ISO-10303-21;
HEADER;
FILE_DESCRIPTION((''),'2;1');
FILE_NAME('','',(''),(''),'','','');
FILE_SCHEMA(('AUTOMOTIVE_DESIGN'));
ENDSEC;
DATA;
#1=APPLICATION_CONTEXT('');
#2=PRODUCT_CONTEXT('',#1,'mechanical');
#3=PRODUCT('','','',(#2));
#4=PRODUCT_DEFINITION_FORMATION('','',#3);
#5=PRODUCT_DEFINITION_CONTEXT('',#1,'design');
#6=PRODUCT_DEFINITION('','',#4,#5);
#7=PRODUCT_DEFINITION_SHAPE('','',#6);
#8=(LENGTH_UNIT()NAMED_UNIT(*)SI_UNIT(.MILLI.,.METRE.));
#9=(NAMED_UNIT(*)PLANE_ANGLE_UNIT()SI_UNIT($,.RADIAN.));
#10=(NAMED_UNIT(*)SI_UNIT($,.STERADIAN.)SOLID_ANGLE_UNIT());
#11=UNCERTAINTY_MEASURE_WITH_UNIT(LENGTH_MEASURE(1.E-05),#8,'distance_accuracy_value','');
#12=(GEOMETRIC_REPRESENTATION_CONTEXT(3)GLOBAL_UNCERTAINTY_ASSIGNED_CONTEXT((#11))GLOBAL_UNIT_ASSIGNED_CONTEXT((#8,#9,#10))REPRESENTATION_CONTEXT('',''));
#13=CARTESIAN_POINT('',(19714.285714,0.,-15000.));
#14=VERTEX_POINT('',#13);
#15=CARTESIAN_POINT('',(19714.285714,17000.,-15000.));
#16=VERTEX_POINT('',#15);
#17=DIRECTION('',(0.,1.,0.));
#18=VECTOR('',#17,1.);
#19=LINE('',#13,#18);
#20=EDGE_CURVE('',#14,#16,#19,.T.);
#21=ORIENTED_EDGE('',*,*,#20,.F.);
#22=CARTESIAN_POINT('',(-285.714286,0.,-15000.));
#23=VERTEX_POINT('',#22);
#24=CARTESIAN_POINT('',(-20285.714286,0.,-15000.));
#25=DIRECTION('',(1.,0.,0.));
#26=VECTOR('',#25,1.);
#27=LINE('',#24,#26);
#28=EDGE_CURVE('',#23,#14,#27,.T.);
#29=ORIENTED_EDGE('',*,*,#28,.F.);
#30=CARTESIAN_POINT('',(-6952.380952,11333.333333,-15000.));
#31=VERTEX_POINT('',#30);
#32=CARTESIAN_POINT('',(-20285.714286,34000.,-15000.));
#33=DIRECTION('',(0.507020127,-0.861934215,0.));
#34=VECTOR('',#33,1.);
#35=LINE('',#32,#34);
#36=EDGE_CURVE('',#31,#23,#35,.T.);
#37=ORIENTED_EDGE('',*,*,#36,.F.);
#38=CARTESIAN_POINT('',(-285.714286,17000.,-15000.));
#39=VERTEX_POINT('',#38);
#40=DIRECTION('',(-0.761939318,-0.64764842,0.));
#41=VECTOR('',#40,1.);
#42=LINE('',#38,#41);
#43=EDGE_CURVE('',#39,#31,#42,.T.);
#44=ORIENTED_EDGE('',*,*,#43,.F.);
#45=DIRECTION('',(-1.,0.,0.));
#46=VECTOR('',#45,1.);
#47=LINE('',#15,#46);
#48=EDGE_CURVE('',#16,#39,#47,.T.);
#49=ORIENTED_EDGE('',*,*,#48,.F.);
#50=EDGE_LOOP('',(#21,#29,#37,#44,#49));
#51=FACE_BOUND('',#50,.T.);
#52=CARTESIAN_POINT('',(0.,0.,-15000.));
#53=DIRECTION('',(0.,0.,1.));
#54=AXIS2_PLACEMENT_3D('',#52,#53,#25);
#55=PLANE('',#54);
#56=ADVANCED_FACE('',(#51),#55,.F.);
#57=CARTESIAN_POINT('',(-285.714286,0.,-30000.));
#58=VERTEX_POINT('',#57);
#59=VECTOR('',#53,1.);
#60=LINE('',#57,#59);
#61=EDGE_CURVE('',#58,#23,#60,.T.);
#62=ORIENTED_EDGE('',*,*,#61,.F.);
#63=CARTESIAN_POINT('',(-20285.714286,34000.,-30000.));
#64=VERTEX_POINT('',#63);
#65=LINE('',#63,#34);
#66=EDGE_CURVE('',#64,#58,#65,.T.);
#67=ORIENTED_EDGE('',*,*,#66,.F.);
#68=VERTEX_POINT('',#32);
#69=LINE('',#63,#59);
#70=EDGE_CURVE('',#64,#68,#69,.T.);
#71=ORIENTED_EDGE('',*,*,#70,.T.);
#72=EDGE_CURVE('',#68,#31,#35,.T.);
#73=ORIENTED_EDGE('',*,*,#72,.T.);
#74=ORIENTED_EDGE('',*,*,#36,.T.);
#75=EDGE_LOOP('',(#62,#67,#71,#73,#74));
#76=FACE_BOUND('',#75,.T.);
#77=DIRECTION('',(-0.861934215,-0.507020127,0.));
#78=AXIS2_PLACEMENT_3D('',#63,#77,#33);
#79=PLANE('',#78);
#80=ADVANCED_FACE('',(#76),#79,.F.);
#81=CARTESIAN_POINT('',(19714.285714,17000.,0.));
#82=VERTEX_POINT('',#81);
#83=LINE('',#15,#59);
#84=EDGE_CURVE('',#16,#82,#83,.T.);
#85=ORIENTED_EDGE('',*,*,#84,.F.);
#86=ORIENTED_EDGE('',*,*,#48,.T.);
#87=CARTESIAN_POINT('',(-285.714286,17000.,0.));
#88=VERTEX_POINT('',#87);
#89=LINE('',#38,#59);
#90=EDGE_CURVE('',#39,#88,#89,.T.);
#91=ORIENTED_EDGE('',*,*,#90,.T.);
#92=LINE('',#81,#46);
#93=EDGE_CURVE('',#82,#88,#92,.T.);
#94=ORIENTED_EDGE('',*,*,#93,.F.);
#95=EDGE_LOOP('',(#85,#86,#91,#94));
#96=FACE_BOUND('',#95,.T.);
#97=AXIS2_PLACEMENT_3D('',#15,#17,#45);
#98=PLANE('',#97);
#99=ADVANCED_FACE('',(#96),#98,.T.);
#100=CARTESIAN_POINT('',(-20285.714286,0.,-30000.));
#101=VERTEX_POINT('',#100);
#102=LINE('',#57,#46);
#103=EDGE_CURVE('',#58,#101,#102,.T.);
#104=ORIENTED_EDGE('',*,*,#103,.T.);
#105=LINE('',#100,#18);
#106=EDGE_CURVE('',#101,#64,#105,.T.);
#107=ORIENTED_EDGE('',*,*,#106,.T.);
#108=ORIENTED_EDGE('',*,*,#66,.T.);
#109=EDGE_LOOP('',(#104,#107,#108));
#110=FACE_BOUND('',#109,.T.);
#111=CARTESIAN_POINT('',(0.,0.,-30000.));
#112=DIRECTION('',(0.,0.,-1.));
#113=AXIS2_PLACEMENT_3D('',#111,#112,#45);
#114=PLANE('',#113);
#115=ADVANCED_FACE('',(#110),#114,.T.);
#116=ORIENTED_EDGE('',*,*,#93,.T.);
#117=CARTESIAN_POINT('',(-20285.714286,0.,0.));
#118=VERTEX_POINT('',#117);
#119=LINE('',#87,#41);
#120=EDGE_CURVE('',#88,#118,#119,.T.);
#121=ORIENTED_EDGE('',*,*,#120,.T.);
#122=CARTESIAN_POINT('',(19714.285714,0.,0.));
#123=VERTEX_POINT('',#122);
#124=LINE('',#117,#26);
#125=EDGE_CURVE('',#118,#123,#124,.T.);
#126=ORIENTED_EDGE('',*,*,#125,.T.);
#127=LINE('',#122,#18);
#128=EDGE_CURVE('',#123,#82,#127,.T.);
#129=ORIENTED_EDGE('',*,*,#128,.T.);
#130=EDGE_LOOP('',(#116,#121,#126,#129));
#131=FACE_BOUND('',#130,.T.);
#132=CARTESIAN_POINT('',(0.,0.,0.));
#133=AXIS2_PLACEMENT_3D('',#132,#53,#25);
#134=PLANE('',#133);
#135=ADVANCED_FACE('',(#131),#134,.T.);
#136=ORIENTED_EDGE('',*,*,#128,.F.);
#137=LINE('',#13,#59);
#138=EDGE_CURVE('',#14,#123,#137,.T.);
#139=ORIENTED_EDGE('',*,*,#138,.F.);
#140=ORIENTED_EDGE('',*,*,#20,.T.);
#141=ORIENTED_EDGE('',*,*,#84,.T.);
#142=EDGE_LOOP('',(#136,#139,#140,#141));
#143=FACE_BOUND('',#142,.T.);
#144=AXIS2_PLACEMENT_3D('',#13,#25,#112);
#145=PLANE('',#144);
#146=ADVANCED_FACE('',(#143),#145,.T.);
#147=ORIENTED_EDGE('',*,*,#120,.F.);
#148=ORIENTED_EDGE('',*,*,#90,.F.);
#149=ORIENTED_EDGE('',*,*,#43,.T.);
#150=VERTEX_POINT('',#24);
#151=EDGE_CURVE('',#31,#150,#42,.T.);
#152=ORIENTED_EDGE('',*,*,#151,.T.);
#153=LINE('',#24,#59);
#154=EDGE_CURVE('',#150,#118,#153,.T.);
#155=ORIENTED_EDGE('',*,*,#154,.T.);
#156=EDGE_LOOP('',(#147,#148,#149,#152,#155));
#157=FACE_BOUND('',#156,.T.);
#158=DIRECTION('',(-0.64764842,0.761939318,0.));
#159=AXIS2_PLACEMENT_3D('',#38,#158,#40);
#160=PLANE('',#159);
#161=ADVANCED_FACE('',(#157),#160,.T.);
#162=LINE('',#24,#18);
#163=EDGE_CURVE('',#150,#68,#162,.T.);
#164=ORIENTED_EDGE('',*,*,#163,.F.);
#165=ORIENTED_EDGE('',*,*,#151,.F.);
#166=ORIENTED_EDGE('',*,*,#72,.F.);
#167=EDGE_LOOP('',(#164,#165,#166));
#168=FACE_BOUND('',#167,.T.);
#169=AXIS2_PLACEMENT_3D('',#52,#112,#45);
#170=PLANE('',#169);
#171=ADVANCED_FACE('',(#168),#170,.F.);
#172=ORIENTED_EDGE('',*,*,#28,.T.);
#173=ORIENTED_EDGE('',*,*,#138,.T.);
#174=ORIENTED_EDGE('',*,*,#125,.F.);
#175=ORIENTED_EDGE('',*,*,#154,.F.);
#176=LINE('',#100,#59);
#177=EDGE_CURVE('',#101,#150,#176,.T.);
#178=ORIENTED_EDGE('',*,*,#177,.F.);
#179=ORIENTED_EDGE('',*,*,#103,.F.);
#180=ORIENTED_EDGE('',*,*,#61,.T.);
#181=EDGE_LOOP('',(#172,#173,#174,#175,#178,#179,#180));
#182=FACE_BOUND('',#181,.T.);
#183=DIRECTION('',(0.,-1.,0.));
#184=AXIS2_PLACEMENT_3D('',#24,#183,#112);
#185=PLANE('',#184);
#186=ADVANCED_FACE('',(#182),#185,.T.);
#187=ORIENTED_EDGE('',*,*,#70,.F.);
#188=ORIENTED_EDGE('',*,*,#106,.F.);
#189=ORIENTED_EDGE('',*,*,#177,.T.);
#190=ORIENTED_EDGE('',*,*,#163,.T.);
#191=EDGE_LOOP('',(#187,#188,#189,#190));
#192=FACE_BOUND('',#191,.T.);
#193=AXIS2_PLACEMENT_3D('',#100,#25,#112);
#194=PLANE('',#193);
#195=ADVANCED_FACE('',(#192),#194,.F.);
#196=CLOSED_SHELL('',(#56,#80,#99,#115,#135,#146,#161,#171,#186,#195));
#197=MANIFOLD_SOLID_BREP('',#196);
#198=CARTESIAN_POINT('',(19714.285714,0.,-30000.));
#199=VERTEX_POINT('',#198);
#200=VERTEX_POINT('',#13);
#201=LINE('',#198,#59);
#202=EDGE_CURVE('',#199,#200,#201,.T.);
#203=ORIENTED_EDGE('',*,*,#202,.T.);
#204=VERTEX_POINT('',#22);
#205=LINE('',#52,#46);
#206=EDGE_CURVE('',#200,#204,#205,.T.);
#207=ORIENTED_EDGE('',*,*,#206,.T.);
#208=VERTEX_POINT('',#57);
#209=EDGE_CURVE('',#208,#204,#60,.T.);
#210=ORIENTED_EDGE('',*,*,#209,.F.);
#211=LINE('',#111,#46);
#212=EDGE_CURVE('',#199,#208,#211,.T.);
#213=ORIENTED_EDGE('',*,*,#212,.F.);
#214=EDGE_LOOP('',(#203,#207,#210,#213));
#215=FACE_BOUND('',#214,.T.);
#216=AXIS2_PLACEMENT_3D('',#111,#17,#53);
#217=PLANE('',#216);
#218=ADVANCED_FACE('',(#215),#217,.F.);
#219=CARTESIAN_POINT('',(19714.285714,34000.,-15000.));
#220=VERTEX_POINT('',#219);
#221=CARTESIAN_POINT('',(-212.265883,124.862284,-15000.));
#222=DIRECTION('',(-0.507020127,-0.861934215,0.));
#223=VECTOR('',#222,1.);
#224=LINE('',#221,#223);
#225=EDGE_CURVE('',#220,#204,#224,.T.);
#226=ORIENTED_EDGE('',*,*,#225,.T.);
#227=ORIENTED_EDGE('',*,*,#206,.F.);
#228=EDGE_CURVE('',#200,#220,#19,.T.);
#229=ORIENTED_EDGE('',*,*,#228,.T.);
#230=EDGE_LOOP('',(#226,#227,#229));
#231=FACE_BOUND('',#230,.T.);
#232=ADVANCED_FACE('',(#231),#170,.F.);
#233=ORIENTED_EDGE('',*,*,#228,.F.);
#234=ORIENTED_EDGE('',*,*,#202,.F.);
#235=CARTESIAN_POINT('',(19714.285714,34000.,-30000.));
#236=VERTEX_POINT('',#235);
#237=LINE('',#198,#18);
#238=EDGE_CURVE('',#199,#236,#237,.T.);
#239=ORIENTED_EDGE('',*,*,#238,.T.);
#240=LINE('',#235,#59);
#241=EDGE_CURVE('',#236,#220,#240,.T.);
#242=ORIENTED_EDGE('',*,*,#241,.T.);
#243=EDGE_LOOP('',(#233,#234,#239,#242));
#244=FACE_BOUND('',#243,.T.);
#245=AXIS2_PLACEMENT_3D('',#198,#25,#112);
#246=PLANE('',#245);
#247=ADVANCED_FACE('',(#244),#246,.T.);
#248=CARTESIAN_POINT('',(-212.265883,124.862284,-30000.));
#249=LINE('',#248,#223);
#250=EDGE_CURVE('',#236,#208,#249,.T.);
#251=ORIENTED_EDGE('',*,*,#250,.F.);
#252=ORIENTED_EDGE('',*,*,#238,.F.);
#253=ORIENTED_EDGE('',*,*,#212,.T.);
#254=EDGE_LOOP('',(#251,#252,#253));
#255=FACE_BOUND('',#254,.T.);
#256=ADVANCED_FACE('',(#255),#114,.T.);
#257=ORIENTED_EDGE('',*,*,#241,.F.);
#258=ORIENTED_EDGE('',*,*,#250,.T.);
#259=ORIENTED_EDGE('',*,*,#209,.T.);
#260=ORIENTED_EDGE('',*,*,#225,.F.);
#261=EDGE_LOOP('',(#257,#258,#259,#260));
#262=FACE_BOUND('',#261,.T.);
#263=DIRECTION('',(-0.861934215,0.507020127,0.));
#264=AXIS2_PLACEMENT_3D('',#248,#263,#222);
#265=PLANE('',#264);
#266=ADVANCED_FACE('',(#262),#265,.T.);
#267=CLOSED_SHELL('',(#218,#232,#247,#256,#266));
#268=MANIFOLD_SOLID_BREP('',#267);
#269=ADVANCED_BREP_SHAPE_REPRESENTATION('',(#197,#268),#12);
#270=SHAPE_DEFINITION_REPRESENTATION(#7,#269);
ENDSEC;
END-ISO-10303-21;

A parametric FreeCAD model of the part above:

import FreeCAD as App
import Part
import Sketcher

V = App.Vector

doc = App.newDocument("Part")
body = doc.addObject("PartDesign::Body", "Body")

# Sketch on XY plane
sketch1 = body.newObject("Sketcher::SketchObject", "Sketch")
sketch1.AttachmentSupport = (doc.getObject("XY_Plane"), [""])
sketch1.MapMode = "FlatFace"
sketch1.addGeometry(Part.LineSegment(V(-20286, 0, 0), V(19714, 0, 0)), False)
sketch1.addGeometry(Part.LineSegment(V(19714, 0, 0), V(19714, 17000, 0)), False)
sketch1.addGeometry(Part.LineSegment(V(19714, 17000, 0), V(-286, 17000, 0)), False)
sketch1.addGeometry(Part.LineSegment(V(-286, 17000, 0), V(-20286, 0, 0)), False)
sketch1.addConstraint(Sketcher.Constraint("Coincident", 0, 2, 1, 1))
sketch1.addConstraint(Sketcher.Constraint("Coincident", 1, 2, 2, 1))
sketch1.addConstraint(Sketcher.Constraint("Coincident", 2, 2, 3, 1))
sketch1.addConstraint(Sketcher.Constraint("Coincident", 3, 2, 0, 1))
sketch1.addConstraint(Sketcher.Constraint("Horizontal", 0))
sketch1.addConstraint(Sketcher.Constraint("Vertical", 1))
sketch1.addConstraint(Sketcher.Constraint("Horizontal", 2))
sketch1.addConstraint(Sketcher.Constraint("PointOnObject", 0, 2, -1))
sketch1.addConstraint(Sketcher.Constraint("DistanceX", 0, 1, 0, 2, 40000.0))
sketch1.addConstraint(Sketcher.Constraint("DistanceX", 2, 2, 2, 1, 20000.0))
sketch1.addConstraint(Sketcher.Constraint("DistanceY", 1, 1, 1, 2, 17000.0))
sketch1.addConstraint(Sketcher.Constraint("DistanceX", -1, 1, 0, 2, 19714.285714))
pad1 = body.newObject("PartDesign::Pad", "Pad")
pad1.Profile = sketch1
pad1.Length = 15000
pad1.Reversed = True

# Sketch on XY plane
sketch2 = body.newObject("Sketcher::SketchObject", "Sketch001")
sketch2.AttachmentSupport = (doc.getObject("XY_Plane"), [""])
sketch2.MapMode = "FlatFace"
sketch2.AttachmentOffset = App.Placement(V(0, 0, -15000), App.Rotation())
sketch2.addGeometry(Part.LineSegment(V(-286, 0, 0), V(-20286, 0, 0)), False)
sketch2.addGeometry(Part.LineSegment(V(-20286, 0, 0), V(-20286, 34000, 0)), False)
sketch2.addGeometry(Part.LineSegment(V(-20286, 34000, 0), V(-286, 0, 0)), False)
sketch2.addConstraint(Sketcher.Constraint("Coincident", 0, 2, 1, 1))
sketch2.addConstraint(Sketcher.Constraint("Coincident", 1, 2, 2, 1))
sketch2.addConstraint(Sketcher.Constraint("Coincident", 2, 2, 0, 1))
sketch2.addConstraint(Sketcher.Constraint("Horizontal", 0))
sketch2.addConstraint(Sketcher.Constraint("Vertical", 1))
sketch2.addConstraint(Sketcher.Constraint("PointOnObject", 0, 2, -1))
sketch2.addConstraint(Sketcher.Constraint("DistanceX", 0, 2, 0, 1, 20000.0))
sketch2.addConstraint(Sketcher.Constraint("DistanceY", 1, 1, 1, 2, 34000.0))
sketch2.addConstraint(Sketcher.Constraint("DistanceX", 0, 2, -1, 1, 20285.714286))
pad2 = body.newObject("PartDesign::Pad", "Pad001")
pad2.Profile = sketch2
pad2.Length = 15000
pad2.Reversed = True
body2 = doc.addObject("PartDesign::Body", "Body001")

# Sketch on XY plane
sketch3 = body2.newObject("Sketcher::SketchObject", "Sketch002")
sketch3.AttachmentSupport = (doc.getObject("XY_Plane001"), [""])
sketch3.MapMode = "FlatFace"
sketch3.AttachmentOffset = App.Placement(V(0, 0, -15000), App.Rotation())
sketch3.addGeometry(Part.LineSegment(V(19714, 34000, 0), V(19714, 0, 0)), False)
sketch3.addGeometry(Part.LineSegment(V(19714, 0, 0), V(-286, 0, 0)), False)
sketch3.addGeometry(Part.LineSegment(V(-286, 0, 0), V(19714, 34000, 0)), False)
sketch3.addConstraint(Sketcher.Constraint("Coincident", 0, 2, 1, 1))
sketch3.addConstraint(Sketcher.Constraint("Coincident", 1, 2, 2, 1))
sketch3.addConstraint(Sketcher.Constraint("Coincident", 2, 2, 0, 1))
sketch3.addConstraint(Sketcher.Constraint("Vertical", 0))
sketch3.addConstraint(Sketcher.Constraint("Horizontal", 1))
sketch3.addConstraint(Sketcher.Constraint("PointOnObject", 0, 2, -1))
sketch3.addConstraint(Sketcher.Constraint("DistanceX", 1, 2, 1, 1, 20000.0))
sketch3.addConstraint(Sketcher.Constraint("DistanceY", 0, 2, 0, 1, 34000.0))
sketch3.addConstraint(Sketcher.Constraint("DistanceX", -1, 1, 0, 2, 19714.285714))
pad3 = body2.newObject("PartDesign::Pad", "Pad002")
pad3.Profile = sketch3
pad3.Length = 15000
pad3.Reversed = True

doc.recompute()
